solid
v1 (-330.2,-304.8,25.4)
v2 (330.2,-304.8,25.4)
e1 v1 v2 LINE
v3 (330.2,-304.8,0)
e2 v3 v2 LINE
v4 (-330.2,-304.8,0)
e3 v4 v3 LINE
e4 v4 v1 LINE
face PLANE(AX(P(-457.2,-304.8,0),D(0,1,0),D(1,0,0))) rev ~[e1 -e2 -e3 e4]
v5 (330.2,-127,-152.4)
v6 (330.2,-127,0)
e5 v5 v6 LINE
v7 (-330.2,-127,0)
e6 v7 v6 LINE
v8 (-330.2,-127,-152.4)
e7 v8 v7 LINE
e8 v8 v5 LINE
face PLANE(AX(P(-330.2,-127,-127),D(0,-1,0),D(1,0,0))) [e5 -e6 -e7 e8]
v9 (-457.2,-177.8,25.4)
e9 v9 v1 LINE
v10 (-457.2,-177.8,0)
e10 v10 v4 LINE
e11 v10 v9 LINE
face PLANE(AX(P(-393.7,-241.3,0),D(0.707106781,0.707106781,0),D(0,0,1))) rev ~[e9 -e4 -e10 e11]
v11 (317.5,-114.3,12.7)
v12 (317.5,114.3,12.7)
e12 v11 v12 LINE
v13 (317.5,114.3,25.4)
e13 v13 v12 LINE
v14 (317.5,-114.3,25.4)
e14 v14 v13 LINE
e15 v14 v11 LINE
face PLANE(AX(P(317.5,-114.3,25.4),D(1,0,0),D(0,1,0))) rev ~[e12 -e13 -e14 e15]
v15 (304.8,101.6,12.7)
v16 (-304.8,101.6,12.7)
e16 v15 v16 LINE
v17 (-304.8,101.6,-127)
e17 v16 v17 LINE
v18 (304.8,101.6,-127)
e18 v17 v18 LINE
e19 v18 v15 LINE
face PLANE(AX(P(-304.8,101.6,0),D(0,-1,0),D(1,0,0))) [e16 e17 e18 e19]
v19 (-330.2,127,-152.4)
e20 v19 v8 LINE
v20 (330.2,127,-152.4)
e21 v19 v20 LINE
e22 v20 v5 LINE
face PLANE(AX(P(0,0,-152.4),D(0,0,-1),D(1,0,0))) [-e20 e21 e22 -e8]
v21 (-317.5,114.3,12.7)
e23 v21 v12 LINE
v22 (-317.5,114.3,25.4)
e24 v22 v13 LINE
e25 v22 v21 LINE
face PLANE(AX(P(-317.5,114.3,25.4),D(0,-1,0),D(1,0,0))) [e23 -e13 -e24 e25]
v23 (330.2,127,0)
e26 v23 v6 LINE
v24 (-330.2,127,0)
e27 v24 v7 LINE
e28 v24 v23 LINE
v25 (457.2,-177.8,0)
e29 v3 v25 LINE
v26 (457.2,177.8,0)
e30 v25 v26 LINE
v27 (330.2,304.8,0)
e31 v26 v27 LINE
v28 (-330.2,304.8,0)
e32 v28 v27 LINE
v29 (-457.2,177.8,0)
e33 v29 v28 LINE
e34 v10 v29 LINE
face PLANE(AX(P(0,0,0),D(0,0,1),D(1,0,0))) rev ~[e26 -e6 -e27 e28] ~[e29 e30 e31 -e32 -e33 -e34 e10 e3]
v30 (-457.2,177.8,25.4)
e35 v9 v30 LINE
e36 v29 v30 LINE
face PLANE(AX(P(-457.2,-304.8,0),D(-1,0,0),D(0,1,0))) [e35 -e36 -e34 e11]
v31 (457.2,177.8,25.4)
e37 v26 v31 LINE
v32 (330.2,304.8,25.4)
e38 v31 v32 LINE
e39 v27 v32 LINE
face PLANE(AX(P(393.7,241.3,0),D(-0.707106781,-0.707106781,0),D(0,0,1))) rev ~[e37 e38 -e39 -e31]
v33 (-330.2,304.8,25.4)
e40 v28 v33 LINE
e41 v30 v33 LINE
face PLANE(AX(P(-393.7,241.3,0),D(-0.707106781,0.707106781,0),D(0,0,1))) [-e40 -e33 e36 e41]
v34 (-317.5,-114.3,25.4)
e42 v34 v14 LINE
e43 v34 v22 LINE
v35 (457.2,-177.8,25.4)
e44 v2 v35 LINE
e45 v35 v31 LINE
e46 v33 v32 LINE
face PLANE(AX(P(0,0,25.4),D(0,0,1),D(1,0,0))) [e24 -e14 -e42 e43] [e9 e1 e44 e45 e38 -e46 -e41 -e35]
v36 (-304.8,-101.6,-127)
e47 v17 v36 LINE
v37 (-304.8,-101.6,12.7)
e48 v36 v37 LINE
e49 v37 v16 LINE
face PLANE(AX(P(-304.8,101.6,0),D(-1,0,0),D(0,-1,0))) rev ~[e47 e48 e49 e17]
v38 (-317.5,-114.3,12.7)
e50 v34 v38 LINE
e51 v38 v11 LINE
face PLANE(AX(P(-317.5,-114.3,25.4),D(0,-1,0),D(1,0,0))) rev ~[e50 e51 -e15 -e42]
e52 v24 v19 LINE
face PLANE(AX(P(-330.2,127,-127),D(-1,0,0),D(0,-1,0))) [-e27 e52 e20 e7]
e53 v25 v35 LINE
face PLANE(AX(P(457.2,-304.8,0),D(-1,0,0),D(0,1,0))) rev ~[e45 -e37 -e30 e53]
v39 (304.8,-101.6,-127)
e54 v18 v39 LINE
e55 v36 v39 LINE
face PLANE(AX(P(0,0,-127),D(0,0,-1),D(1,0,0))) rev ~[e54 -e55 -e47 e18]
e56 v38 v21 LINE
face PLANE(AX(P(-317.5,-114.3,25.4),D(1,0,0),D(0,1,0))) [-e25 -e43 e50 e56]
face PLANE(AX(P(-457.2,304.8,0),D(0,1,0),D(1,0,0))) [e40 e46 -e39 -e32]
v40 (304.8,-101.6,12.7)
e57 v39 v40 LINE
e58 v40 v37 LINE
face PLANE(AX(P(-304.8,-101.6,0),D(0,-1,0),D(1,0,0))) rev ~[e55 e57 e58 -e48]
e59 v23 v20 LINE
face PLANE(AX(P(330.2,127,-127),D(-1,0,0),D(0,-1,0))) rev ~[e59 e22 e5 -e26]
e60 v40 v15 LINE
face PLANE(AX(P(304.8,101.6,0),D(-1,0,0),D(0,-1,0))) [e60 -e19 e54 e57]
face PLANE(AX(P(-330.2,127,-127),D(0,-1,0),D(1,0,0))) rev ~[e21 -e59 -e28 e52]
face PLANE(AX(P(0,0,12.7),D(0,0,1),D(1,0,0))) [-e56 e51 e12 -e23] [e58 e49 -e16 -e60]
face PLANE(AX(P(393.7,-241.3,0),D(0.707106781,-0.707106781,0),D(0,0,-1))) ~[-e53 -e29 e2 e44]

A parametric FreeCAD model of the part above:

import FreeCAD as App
import Part
import Sketcher

V = App.Vector
Q = App.Units.Quantity


def edges_at(feature, points):
    """Names of the edges that pass closest to the given points."""
    edges = feature.Shape.Edges
    near = lambda p: min(range(len(edges)), key=lambda i: edges[i].distToShape(Part.Vertex(*p))[0])
    return sorted({f"Edge{near(p) + 1}" for p in points})


def add_polygon(sketch, points):
    """Adds a closed chain of lines whose ends are joined by coincident constraints."""
    first, n = sketch.GeometryCount, len(points)
    for a, b in zip(points, points[1:] + points[:1]):
        sketch.addGeometry(Part.LineSegment(App.Vector(*a, 0), App.Vector(*b, 0)), False)
    for i in range(n):
        sketch.addConstraint(Sketcher.Constraint("Coincident", first + i, 2, first + (i + 1) % n, 1))

doc = App.newDocument("Part")
body = doc.addObject("PartDesign::Body", "Body")

# Sketch on XY plane
sketch1 = body.newObject("Sketcher::SketchObject", "Sketch")
sketch1.AttachmentSupport = (doc.getObject("XY_Plane"), [""])
sketch1.MapMode = "FlatFace"
add_polygon(sketch1, [(-457.2, 304.8), (-457.2, -304.8), (457.2, -304.8), (457.2, 304.8)])  # lines 0-3
sketch1.addConstraint(Sketcher.Constraint("Vertical", 0))
sketch1.addConstraint(Sketcher.Constraint("Horizontal", 1))
sketch1.addConstraint(Sketcher.Constraint("Vertical", 2))
sketch1.addConstraint(Sketcher.Constraint("Horizontal", 3))
sketch1.addConstraint(Sketcher.Constraint("Symmetric", 0, 2, 2, 2, -1, 1))
sketch1.addConstraint(Sketcher.Constraint("DistanceX", 1, 1, 1, 2, Q("36 in")))
sketch1.addConstraint(Sketcher.Constraint("DistanceY", 0, 2, 0, 1, Q("24 in")))
pad1 = body.newObject("PartDesign::Pad", "Pad")
pad1.Profile = sketch1
pad1.Length = Q("1 in")
doc.recompute()

chamfer = body.newObject("PartDesign::Chamfer", "Chamfer")
chamfer.Base = (pad1, edges_at(pad1, [
    (-457.2, -304.8, 12.7),
    (457.2, -304.8, 12.7),
    (457.2, 304.8, 12.7),
    (-457.2, 304.8, 12.7),
]))
chamfer.Size = Q("5 in")

# Sketch on XY plane
sketch2 = body.newObject("Sketcher::SketchObject", "Sketch001")
sketch2.AttachmentSupport = (doc.getObject("XY_Plane"), [""])
sketch2.MapMode = "FlatFace"
sketch2.AttachmentOffset = App.Placement(V(0, 0, 1 * 25.4), App.Rotation())
add_polygon(sketch2, [(-304.8, 101.6), (-304.8, -101.6), (304.8, -101.6), (304.8, 101.6)])  # lines 0-3
sketch2.addConstraint(Sketcher.Constraint("Vertical", 0))
sketch2.addConstraint(Sketcher.Constraint("Horizontal", 1))
sketch2.addConstraint(Sketcher.Constraint("Vertical", 2))
sketch2.addConstraint(Sketcher.Constraint("Horizontal", 3))
sketch2.addConstraint(Sketcher.Constraint("Symmetric", 0, 2, 2, 2, -1, 1))
sketch2.addConstraint(Sketcher.Constraint("DistanceX", 1, 1, 1, 2, Q("24 in")))
sketch2.addConstraint(Sketcher.Constraint("DistanceY", 0, 2, 0, 1, Q("8 in")))
pocket1 = body.newObject("PartDesign::Pocket", "Pocket")
pocket1.Profile = sketch2
pocket1.Type = "ThroughAll"

# Sketch on XY plane
sketch3 = body.newObject("Sketcher::SketchObject", "Sketch002")
sketch3.AttachmentSupport = (doc.getObject("XY_Plane"), [""])
sketch3.MapMode = "FlatFace"
add_polygon(sketch3, [(-330.2, -127), (-330.2, 127), (330.2, 127), (330.2, -127)])  # lines 0-3
add_polygon(sketch3, [(304.8, 101.6), (-304.8, 101.6), (-304.8, -101.6), (304.8, -101.6)])  # lines 4-7
sketch3.addConstraint(Sketcher.Constraint("Vertical", 0))
sketch3.addConstraint(Sketcher.Constraint("Horizontal", 1))
sketch3.addConstraint(Sketcher.Constraint("Vertical", 2))
sketch3.addConstraint(Sketcher.Constraint("Horizontal", 3))
sketch3.addConstraint(Sketcher.Constraint("Horizontal", 4))
sketch3.addConstraint(Sketcher.Constraint("Vertical", 5))
sketch3.addConstraint(Sketcher.Constraint("Horizontal", 6))
sketch3.addConstraint(Sketcher.Constraint("Vertical", 7))
sketch3.addConstraint(Sketcher.Constraint("Symmetric", 0, 2, 2, 2, -1, 1))
sketch3.addConstraint(Sketcher.Constraint("Symmetric", 4, 2, 6, 2, -1, 1))
sketch3.addConstraint(Sketcher.Constraint("DistanceX", 1, 1, 1, 2, Q("26 in")))
sketch3.addConstraint(Sketcher.Constraint("DistanceX", 4, 2, 4, 1, Q("24 in")))
sketch3.addConstraint(Sketcher.Constraint("DistanceY", 0, 1, 0, 2, Q("10 in")))
sketch3.addConstraint(Sketcher.Constraint("DistanceY", 5, 2, 5, 1, Q("8 in")))
pad2 = body.newObject("PartDesign::Pad", "Pad001")
pad2.Profile = sketch3
pad2.Length = Q("5 in")
pad2.Reversed = True

# Sketch on XY plane
sketch4 = body.newObject("Sketcher::SketchObject", "Sketch003")
sketch4.AttachmentSupport = (doc.getObject("XY_Plane"), [""])
sketch4.MapMode = "FlatFace"
sketch4.AttachmentOffset = App.Placement(V(0, 0, -5 * 25.4), App.Rotation())
add_polygon(sketch4, [(-330.2, -127), (-330.2, 127), (330.2, 127), (330.2, -127)])  # lines 0-3
sketch4.addConstraint(Sketcher.Constraint("Vertical", 0))
sketch4.addConstraint(Sketcher.Constraint("Horizontal", 1))
sketch4.addConstraint(Sketcher.Constraint("Vertical", 2))
sketch4.addConstraint(Sketcher.Constraint("Horizontal", 3))
sketch4.addConstraint(Sketcher.Constraint("Symmetric", 0, 2, 2, 2, -1, 1))
sketch4.addConstraint(Sketcher.Constraint("DistanceX", 1, 1, 1, 2, Q("26 in")))
sketch4.addConstraint(Sketcher.Constraint("DistanceY", 0, 1, 0, 2, Q("10 in")))
pad3 = body.newObject("PartDesign::Pad", "Pad002")
pad3.Profile = sketch4
pad3.Length = Q("1 in")
pad3.Reversed = True

# Sketch on XY plane
sketch5 = body.newObject("Sketcher::SketchObject", "Sketch004")
sketch5.AttachmentSupport = (doc.getObject("XY_Plane"), [""])
sketch5.MapMode = "FlatFace"
sketch5.AttachmentOffset = App.Placement(V(0, 0, 1 * 25.4), App.Rotation())
add_polygon(sketch5, [(-317.5, 114.3), (-317.5, -114.3), (317.5, -114.3), (317.5, 114.3)])  # lines 0-3
sketch5.addConstraint(Sketcher.Constraint("Vertical", 0))
sketch5.addConstraint(Sketcher.Constraint("Horizontal", 1))
sketch5.addConstraint(Sketcher.Constraint("Vertical", 2))
sketch5.addConstraint(Sketcher.Constraint("Horizontal", 3))
sketch5.addConstraint(Sketcher.Constraint("Symmetric", 0, 2, 2, 2, -1, 1))
sketch5.addConstraint(Sketcher.Constraint("DistanceX", 1, 1, 1, 2, Q("25 in")))
sketch5.addConstraint(Sketcher.Constraint("DistanceY", 0, 2, 0, 1, Q("9 in")))
pocket2 = body.newObject("PartDesign::Pocket", "Pocket001")
pocket2.Profile = sketch5
pocket2.Length = Q("0.5 in")

doc.recompute()
